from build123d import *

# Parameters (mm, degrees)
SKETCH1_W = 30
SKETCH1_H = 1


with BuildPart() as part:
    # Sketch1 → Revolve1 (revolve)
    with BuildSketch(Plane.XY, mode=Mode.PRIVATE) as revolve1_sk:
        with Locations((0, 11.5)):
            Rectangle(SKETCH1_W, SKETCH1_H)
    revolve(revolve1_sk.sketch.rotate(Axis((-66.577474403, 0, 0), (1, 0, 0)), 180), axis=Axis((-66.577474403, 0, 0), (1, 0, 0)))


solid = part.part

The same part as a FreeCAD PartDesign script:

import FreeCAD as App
import Part
import Sketcher
from FreeCAD import Vector
Q = App.Units.Quantity


def add_polygon(sketch, points):
    """Adds a closed chain of lines whose ends are joined by coincident constraints."""
    first, n = sketch.GeometryCount, len(points)
    for a, b in zip(points, points[1:] + points[:1]):
        sketch.addGeometry(Part.LineSegment(App.Vector(*a, 0), App.Vector(*b, 0)), False)
    for i in range(n):
        sketch.addConstraint(Sketcher.Constraint("Coincident", first + i, 2, first + (i + 1) % n, 1))

doc = App.newDocument("Part")
body = doc.addObject("PartDesign::Body", "Body")

# Sketch on XY plane
sketch1 = body.newObject("Sketcher::SketchObject", "Sketch")
sketch1.AttachmentSupport = (doc.getObject("XY_Plane"), [""])
sketch1.MapMode = "FlatFace"
add_polygon(sketch1, [(-15, 12), (-15, 11), (15, 11), (15, 12)])  # lines 0-3
sketch1.addConstraint([
    Sketcher.Constraint("Vertical", 0),
    Sketcher.Constraint("Horizontal", 1),
    Sketcher.Constraint("Vertical", 2),
    Sketcher.Constraint("Horizontal", 3),
    Sketcher.Constraint("DistanceX", 1, 1, 1, 2, Q("30 mm")),
    Sketcher.Constraint("DistanceY", 0, 2, 0, 1, Q("1 mm")),
    Sketcher.Constraint("DistanceX", 0, 2, -1, 1, Q("15 mm")),
    Sketcher.Constraint("DistanceY", -1, 1, 0, 2, Q("11 mm")),
])
revolution = body.newObject("PartDesign::Revolution", "Revolution")
revolution.Profile = sketch1
revolution.ReferenceAxis = (sketch1, ["H_Axis"])
revolution.Angle = 360

doc.recompute()
